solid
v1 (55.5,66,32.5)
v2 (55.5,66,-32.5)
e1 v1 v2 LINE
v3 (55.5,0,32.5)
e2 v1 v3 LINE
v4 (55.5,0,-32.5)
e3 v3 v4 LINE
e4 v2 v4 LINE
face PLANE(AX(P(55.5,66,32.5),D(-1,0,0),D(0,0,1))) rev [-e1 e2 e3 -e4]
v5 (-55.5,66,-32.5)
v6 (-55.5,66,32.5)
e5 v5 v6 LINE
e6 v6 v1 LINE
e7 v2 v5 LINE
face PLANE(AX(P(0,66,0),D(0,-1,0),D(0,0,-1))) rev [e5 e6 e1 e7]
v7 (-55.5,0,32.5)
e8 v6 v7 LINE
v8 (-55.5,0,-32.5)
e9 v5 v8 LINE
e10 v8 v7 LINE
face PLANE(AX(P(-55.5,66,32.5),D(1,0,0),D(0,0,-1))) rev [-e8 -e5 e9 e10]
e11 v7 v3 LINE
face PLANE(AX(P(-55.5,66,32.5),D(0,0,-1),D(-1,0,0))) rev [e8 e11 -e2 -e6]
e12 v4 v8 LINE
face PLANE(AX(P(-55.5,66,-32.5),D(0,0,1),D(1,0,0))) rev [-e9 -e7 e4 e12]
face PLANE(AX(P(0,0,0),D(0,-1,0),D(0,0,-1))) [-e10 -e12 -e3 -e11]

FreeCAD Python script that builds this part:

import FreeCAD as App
import Part
import Sketcher
Q = App.Units.Quantity


def add_polygon(sketch, points):
    """Adds a closed chain of lines whose ends are joined by coincident constraints."""
    first, n = sketch.GeometryCount, len(points)
    for a, b in zip(points, points[1:] + points[:1]):
        sketch.addGeometry(Part.LineSegment(App.Vector(*a, 0), App.Vector(*b, 0)), False)
    for i in range(n):
        sketch.addConstraint(Sketcher.Constraint("Coincident", first + i, 2, first + (i + 1) % n, 1))

doc = App.newDocument("Part")
body = doc.addObject("PartDesign::Body", "Body")

# Sketch on XZ plane
sketch1 = body.newObject("Sketcher::SketchObject", "Sketch")
sketch1.AttachmentSupport = (doc.getObject("XZ_Plane"), [""])
sketch1.MapMode = "FlatFace"
add_polygon(sketch1, [(-56, -32), (-56, 32), (56, 32), (56, -32)])  # lines 0-3
sketch1.addConstraint(Sketcher.Constraint("Vertical", 0))
sketch1.addConstraint(Sketcher.Constraint("Horizontal", 1))
sketch1.addConstraint(Sketcher.Constraint("Vertical", 2))
sketch1.addConstraint(Sketcher.Constraint("Horizontal", 3))
sketch1.addConstraint(Sketcher.Constraint("Symmetric", 0, 2, 2, 2, -1, 1))
sketch1.addConstraint(Sketcher.Constraint("DistanceX", 1, 1, 1, 2, Q("111 mm")))
sketch1.addConstraint(Sketcher.Constraint("DistanceY", 0, 1, 0, 2, Q("65 mm")))
pad1 = body.newObject("PartDesign::Pad", "Pad")
pad1.Profile = sketch1
pad1.Length = 66
pad1.Reversed = True

doc.recompute()
